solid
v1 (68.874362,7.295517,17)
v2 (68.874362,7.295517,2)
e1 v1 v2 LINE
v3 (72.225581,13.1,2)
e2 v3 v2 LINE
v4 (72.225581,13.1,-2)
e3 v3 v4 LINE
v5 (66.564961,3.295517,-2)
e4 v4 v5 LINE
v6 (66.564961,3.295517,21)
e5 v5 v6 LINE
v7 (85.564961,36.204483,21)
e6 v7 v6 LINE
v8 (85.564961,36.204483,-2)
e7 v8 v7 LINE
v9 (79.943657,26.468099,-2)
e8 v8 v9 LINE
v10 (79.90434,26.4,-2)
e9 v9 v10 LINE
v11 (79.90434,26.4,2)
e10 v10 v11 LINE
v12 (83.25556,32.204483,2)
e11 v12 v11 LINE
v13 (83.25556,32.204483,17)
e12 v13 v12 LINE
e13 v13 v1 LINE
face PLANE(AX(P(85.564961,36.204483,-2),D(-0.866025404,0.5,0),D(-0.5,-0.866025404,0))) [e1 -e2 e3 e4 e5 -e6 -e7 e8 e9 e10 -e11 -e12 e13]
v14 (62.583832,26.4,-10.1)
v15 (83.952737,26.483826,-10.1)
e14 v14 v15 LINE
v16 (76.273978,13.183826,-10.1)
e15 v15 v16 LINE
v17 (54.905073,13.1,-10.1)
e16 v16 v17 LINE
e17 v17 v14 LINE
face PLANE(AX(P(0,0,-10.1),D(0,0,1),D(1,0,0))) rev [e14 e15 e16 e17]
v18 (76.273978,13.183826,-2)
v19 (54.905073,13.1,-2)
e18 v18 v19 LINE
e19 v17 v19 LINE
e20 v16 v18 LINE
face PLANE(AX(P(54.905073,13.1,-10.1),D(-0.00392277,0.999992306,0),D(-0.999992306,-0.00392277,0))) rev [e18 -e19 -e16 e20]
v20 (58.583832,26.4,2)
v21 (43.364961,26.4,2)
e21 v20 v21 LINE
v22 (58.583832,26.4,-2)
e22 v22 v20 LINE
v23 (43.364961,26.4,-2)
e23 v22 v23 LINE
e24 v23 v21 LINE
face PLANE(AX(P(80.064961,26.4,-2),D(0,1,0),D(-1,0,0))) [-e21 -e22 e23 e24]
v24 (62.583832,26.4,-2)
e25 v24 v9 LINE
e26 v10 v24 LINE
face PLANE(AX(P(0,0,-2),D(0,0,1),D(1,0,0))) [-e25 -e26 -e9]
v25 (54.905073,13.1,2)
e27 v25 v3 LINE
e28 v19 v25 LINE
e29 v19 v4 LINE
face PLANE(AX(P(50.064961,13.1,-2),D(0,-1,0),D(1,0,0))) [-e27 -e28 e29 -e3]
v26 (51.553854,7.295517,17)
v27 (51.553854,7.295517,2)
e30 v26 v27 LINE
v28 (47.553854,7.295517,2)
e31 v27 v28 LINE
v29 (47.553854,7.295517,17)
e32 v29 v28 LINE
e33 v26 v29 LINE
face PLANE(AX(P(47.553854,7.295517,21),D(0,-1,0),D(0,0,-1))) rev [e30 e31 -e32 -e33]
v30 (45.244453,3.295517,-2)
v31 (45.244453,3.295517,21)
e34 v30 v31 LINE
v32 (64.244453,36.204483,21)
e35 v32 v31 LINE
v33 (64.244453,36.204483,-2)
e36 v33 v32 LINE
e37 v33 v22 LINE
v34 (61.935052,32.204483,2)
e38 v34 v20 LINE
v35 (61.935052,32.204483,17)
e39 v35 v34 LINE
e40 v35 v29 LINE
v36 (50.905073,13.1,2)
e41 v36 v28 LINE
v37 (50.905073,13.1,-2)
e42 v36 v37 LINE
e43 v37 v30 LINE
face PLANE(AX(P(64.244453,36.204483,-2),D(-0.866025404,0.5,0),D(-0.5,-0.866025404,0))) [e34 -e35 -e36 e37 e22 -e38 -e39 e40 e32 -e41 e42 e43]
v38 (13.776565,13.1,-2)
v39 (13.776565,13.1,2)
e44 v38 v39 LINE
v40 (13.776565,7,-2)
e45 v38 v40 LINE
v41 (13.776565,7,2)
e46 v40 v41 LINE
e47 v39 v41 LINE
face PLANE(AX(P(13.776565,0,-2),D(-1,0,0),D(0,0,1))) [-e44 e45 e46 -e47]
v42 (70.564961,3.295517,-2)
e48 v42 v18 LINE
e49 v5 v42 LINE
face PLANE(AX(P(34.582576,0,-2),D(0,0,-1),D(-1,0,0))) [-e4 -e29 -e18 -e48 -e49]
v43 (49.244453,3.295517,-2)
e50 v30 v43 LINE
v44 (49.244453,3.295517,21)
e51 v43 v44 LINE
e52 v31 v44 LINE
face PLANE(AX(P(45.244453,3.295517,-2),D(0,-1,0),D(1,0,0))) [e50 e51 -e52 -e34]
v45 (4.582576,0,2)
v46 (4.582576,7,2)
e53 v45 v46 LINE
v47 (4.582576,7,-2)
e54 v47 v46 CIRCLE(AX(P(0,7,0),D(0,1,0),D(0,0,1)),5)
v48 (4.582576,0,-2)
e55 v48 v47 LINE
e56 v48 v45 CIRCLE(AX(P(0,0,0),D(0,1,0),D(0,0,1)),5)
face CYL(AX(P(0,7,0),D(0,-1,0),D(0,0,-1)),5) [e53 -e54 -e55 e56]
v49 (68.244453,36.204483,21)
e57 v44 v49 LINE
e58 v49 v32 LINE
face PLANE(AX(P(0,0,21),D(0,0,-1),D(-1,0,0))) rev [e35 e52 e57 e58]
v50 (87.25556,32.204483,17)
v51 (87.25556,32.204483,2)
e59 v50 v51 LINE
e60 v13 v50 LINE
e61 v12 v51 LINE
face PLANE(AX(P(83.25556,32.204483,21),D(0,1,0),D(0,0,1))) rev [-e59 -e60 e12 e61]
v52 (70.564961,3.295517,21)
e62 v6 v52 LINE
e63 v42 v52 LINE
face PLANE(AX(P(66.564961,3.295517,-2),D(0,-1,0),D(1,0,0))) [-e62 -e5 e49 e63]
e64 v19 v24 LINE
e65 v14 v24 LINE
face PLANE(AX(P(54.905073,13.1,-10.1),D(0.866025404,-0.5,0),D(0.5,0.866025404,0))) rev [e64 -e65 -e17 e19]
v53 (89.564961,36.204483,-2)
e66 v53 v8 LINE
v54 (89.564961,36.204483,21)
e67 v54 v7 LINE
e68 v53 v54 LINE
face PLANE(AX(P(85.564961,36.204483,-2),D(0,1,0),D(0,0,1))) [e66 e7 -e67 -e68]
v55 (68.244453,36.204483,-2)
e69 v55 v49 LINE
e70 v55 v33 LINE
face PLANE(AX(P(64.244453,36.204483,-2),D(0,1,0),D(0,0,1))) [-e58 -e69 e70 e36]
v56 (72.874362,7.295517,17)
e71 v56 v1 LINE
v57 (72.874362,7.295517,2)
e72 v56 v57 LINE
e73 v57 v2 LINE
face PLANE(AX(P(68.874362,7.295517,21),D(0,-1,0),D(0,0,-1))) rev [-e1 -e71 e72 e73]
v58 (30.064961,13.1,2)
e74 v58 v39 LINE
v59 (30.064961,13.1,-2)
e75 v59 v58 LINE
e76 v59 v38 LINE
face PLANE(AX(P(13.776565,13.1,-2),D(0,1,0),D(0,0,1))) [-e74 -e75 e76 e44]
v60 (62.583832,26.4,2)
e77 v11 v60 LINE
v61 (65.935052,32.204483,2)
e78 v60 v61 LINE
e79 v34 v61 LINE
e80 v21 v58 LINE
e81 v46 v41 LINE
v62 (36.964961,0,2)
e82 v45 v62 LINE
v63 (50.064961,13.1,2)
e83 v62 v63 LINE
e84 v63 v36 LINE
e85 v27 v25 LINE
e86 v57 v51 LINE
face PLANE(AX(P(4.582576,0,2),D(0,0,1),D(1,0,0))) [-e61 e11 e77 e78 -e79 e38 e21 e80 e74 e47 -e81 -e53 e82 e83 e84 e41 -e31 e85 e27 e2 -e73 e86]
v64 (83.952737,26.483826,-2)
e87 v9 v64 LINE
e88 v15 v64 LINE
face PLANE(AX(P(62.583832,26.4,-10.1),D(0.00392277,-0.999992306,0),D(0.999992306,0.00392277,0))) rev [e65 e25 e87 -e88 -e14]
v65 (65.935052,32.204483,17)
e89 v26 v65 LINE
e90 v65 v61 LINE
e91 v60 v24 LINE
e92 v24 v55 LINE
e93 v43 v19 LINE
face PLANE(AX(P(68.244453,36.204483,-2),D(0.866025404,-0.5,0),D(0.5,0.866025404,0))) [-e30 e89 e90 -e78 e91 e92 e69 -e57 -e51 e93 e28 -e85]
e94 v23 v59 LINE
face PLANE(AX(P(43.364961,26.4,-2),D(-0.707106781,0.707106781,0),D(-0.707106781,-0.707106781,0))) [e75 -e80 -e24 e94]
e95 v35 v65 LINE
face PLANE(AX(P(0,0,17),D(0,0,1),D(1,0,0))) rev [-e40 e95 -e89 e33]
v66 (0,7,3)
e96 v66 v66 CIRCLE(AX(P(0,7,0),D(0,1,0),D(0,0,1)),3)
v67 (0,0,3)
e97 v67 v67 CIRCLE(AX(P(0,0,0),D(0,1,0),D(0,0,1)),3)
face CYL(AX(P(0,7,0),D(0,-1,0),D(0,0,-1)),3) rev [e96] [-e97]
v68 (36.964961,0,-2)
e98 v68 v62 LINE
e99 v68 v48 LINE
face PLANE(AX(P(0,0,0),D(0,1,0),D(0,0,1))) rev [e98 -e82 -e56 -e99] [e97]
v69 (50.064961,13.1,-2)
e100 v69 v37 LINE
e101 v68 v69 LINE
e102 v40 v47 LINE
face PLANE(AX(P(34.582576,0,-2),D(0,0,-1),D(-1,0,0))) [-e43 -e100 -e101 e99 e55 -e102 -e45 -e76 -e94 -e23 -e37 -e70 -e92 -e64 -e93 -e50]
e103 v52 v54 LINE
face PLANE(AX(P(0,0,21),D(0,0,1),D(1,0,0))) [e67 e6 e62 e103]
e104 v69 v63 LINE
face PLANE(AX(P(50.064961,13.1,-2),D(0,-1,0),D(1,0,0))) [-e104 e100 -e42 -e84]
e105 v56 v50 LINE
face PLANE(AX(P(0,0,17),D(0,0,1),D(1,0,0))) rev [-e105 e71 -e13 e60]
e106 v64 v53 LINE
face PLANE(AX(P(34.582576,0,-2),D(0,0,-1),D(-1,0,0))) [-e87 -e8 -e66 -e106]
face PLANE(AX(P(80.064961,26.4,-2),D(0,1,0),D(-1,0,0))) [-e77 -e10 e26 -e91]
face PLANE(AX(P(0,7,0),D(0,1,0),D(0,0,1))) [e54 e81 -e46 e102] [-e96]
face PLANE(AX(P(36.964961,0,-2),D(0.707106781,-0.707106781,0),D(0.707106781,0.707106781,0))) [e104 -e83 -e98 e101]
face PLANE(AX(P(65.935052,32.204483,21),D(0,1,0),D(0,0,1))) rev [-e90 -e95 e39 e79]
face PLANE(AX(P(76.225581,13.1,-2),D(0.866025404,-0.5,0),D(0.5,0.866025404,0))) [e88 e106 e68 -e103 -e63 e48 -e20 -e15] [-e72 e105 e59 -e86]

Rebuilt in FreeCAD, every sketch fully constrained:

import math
import FreeCAD as App
import Part
import Sketcher

V = App.Vector
Q = App.Units.Quantity


def add_polygon(sketch, points):
    """Adds a closed chain of lines whose ends are joined by coincident constraints."""
    first, n = sketch.GeometryCount, len(points)
    for a, b in zip(points, points[1:] + points[:1]):
        sketch.addGeometry(Part.LineSegment(App.Vector(*a, 0), App.Vector(*b, 0)), False)
    for i in range(n):
        sketch.addConstraint(Sketcher.Constraint("Coincident", first + i, 2, first + (i + 1) % n, 1))

doc = App.newDocument("Part")
body = doc.addObject("PartDesign::Body", "Body")

# Sketch on XZ plane
sketch1 = body.newObject("Sketcher::SketchObject", "Sketch")
sketch1.AttachmentSupport = (doc.getObject("XZ_Plane"), [""])
sketch1.MapMode = "FlatFace"
sketch1.addGeometry(Part.Circle(V(0, 0, 0), V(0, 0, 1), 5), False)
sketch1.addGeometry(Part.Circle(V(0, 0, 0), V(0, 0, 1), 3), False)
sketch1.addConstraint(Sketcher.Constraint("Coincident", 0, 3, -1, 1))
sketch1.addConstraint(Sketcher.Constraint("Coincident", 1, 3, -1, 1))
sketch1.addConstraint(Sketcher.Constraint("Diameter", 0, 10.0))
sketch1.addConstraint(Sketcher.Constraint("Diameter", 1, 6.0))
pad1 = body.newObject("PartDesign::Pad", "Pad")
pad1.Profile = sketch1
pad1.Length = 7
pad1.Reversed = True

# Sketch on XZ plane
sketch2 = body.newObject("Sketcher::SketchObject", "Sketch001")
sketch2.AttachmentSupport = (doc.getObject("XZ_Plane"), [""])
sketch2.MapMode = "FlatFace"
sketch2.AttachmentOffset = App.Placement(V(0, 0, -7), App.Rotation())
sketch2.addGeometry(Part.LineSegment(V(4.582576, 2, 0), V(34.582576, 2, 0)), False)
sketch2.addGeometry(Part.LineSegment(V(34.582576, 2, 0), V(34.582576, -2, 0)), False)
sketch2.addGeometry(Part.LineSegment(V(34.582576, -2, 0), V(4.582576, -2, 0)), False)
sketch2.addGeometry(Part.ArcOfCircle(Part.Circle(V(0, 0, 0), V(0, 0, 1), 5), math.radians(23.578178), math.radians(336.421822)), False)
sketch2.addGeometry(Part.Circle(V(0, 0, 0), V(0, 0, 1), 3), False)
sketch2.addConstraint(Sketcher.Constraint("Coincident", 0, 2, 1, 1))
sketch2.addConstraint(Sketcher.Constraint("Coincident", 1, 2, 2, 1))
sketch2.addConstraint(Sketcher.Constraint("Coincident", 2, 2, 3, 2))
sketch2.addConstraint(Sketcher.Constraint("Coincident", 3, 1, 0, 1))
sketch2.addConstraint(Sketcher.Constraint("Horizontal", 0))
sketch2.addConstraint(Sketcher.Constraint("Vertical", 1))
sketch2.addConstraint(Sketcher.Constraint("Horizontal", 2))
sketch2.addConstraint(Sketcher.Constraint("Coincident", 3, 3, -1, 1))
sketch2.addConstraint(Sketcher.Constraint("Coincident", 4, 3, -1, 1))
sketch2.addConstraint(Sketcher.Constraint("Vertical", 2, 2, 3, 1))
sketch2.addConstraint(Sketcher.Constraint("Diameter", 4, 6.0))
sketch2.addConstraint(Sketcher.Constraint("Radius", 3, 5.0))
sketch2.addConstraint(Sketcher.Constraint("DistanceX", 0, 1, 0, 2, 30.0))
sketch2.addConstraint(Sketcher.Constraint("DistanceY", 1, 2, 1, 1, 4.0))
pad2 = body.newObject("PartDesign::Pad", "Pad001")
pad2.Profile = sketch2
pad2.Length = 7

# Sketch on XY plane
sketch3 = body.newObject("Sketcher::SketchObject", "Sketch002")
sketch3.AttachmentSupport = (doc.getObject("XY_Plane"), [""])
sketch3.MapMode = "FlatFace"
sketch3.AttachmentOffset = App.Placement(V(0, 0, 2), App.Rotation())
add_polygon(sketch3, [(13.776565, 13.1), (13.776565, 0), (30.064961, 0), (30.064961, 13.1)])  # lines 0-3
sketch3.addConstraint(Sketcher.Constraint("Vertical", 0))
sketch3.addConstraint(Sketcher.Constraint("Horizontal", 1))
sketch3.addConstraint(Sketcher.Constraint("Vertical", 2))
sketch3.addConstraint(Sketcher.Constraint("Horizontal", 3))
sketch3.addConstraint(Sketcher.Constraint("PointOnObject", 0, 2, -1))
sketch3.addConstraint(Sketcher.Constraint("DistanceY", 0, 2, 0, 1, 13.1))
sketch3.addConstraint(Sketcher.Constraint("DistanceX", 1, 1, 1, 2, 16.288396))
sketch3.addConstraint(Sketcher.Constraint("DistanceX", -1, 1, 1, 2, 30.064961))
pad3 = body.newObject("PartDesign::Pad", "Pad002")
pad3.Profile = sketch3
pad3.Length = 4
pad3.Reversed = True

# Sketch on XY plane
sketch4 = body.newObject("Sketcher::SketchObject", "Sketch003")
sketch4.AttachmentSupport = (doc.getObject("XY_Plane"), [""])
sketch4.MapMode = "FlatFace"
sketch4.AttachmentOffset = App.Placement(V(0, 0, 2), App.Rotation())
add_polygon(sketch4, [(30.064961, 7), (30.064961, 0), (34.582576, 0), (34.582576, 7)])  # lines 0-3
sketch4.addConstraint(Sketcher.Constraint("Vertical", 0))
sketch4.addConstraint(Sketcher.Constraint("Horizontal", 1))
sketch4.addConstraint(Sketcher.Constraint("Vertical", 2))
sketch4.addConstraint(Sketcher.Constraint("Horizontal", 3))
sketch4.addConstraint(Sketcher.Constraint("PointOnObject", 0, 2, -1))
sketch4.addConstraint(Sketcher.Constraint("DistanceY", 0, 2, 0, 1, 7.0))
sketch4.addConstraint(Sketcher.Constraint("DistanceX", 1, 1, 1, 2, 4.517615))
sketch4.addConstraint(Sketcher.Constraint("DistanceX", -1, 1, 0, 2, 30.064961))
pocket1 = body.newObject("PartDesign::Pocket", "Pocket")
pocket1.Profile = sketch4
pocket1.Length = 4

# Sketch on XY plane
sketch5 = body.newObject("Sketcher::SketchObject", "Sketch004")
sketch5.AttachmentSupport = (doc.getObject("XY_Plane"), [""])
sketch5.MapMode = "FlatFace"
sketch5.AttachmentOffset = App.Placement(V(0, 0, 2), App.Rotation())
add_polygon(sketch5, [(30.064961, 13.1), (30.064961, 0), (36.964961, 0), (50.064961, 13.1), (76.225581, 13.1), (80.064961, 19.75), (80.064961, 26.4), (43.364961, 26.4)])  # lines 0-7
sketch5.addConstraint(Sketcher.Constraint("Vertical", 0))
sketch5.addConstraint(Sketcher.Constraint("Horizontal", 1))
sketch5.addConstraint(Sketcher.Constraint("Horizontal", 3))
sketch5.addConstraint(Sketcher.Constraint("Vertical", 5))
sketch5.addConstraint(Sketcher.Constraint("Horizontal", 6))
sketch5.addConstraint(Sketcher.Constraint("PointOnObject", 0, 2, -1))
sketch5.addConstraint(Sketcher.Constraint("Parallel", 2, 7))
sketch5.addConstraint(Sketcher.Constraint("Horizontal", 3, 2, 7, 2))
sketch5.addConstraint(Sketcher.Constraint("Angle", 2, Q("45 deg")))
sketch5.addConstraint(Sketcher.Constraint("Angle", 4, Q("60 deg")))
sketch5.addConstraint(Sketcher.Constraint("DistanceX", 1, 1, 1, 2, 6.9))
sketch5.addConstraint(Sketcher.Constraint("DistanceX", 6, 2, 6, 1, 36.7))
sketch5.addConstraint(Sketcher.Constraint("DistanceY", 0, 2, 0, 1, 13.1))
sketch5.addConstraint(Sketcher.Constraint("DistanceX", 2, 2, 4, 2, 30.0))
sketch5.addConstraint(Sketcher.Constraint("DistanceY", 5, 1, 5, 2, 6.65))
sketch5.addConstraint(Sketcher.Constraint("DistanceX", -1, 1, 0, 2, 30.064961))
pad4 = body.newObject("PartDesign::Pad", "Pad003")
pad4.Profile = sketch5
pad4.Length = 4
pad4.Reversed = True

# Sketch on XY plane
sketch6 = body.newObject("Sketcher::SketchObject", "Sketch005")
sketch6.AttachmentSupport = (doc.getObject("XY_Plane"), [""])
sketch6.MapMode = "FlatFace"
sketch6.AttachmentOffset = App.Placement(V(0, 0, 2), App.Rotation())
add_polygon(sketch6, [(68.244453, 36.204483), (64.244453, 36.204483), (45.244453, 3.295517), (49.244453, 3.295517)])  # lines 0-3
add_polygon(sketch6, [(89.564961, 36.204483), (85.564961, 36.204483), (66.564961, 3.295517), (70.564961, 3.295517)])  # lines 4-7
sketch6.addConstraint(Sketcher.Constraint("Horizontal", 0))
sketch6.addConstraint(Sketcher.Constraint("Horizontal", 2))
sketch6.addConstraint(Sketcher.Constraint("Horizontal", 4))
sketch6.addConstraint(Sketcher.Constraint("Horizontal", 6))
sketch6.addConstraint(Sketcher.Constraint("Parallel", 1, 3))
sketch6.addConstraint(Sketcher.Constraint("Parallel", 3, 5))
sketch6.addConstraint(Sketcher.Constraint("Parallel", 5, 7))
sketch6.addConstraint(Sketcher.Constraint("Horizontal", 3, 2, 4, 2))
sketch6.addConstraint(Sketcher.Constraint("Horizontal", 2, 2, 5, 2))
sketch6.addConstraint(Sketcher.Constraint("Equal", 2, 4))
sketch6.addConstraint(Sketcher.Constraint("DistanceX", 0, 2, 0, 1, 4.0))
sketch6.addConstraint(Sketcher.Constraint("Angle", 1, Q("-120 deg")))
sketch6.addConstraint(Sketcher.Constraint("Distance", 1, 38.0))
sketch6.addConstraint(Sketcher.Constraint("DistanceX", -1, 1, 4, 2, 85.564961))
sketch6.addConstraint(Sketcher.Constraint("DistanceX", 3, 2, 4, 2, 17.320508))
sketch6.addConstraint(Sketcher.Constraint("DistanceY", -1, 1, 0, 2, 36.204483))
pad5 = body.newObject("PartDesign::Pad", "Pad004")
pad5.Profile = sketch6
pad5.Length = 4
pad5.Reversed = True

# Sketch on XY plane
sketch7 = body.newObject("Sketcher::SketchObject", "Sketch006")
sketch7.AttachmentSupport = (doc.getObject("XY_Plane"), [""])
sketch7.MapMode = "FlatFace"
sketch7.AttachmentOffset = App.Placement(V(0, 0, 2), App.Rotation())
add_polygon(sketch7, [(68.244453, 36.204483), (64.244453, 36.204483), (61.935052, 32.204483), (65.935052, 32.204483)])  # lines 0-3
add_polygon(sketch7, [(89.564961, 36.204483), (85.564961, 36.204483), (83.25556, 32.204483), (87.25556, 32.204483)])  # lines 4-7
add_polygon(sketch7, [(66.564961, 3.295517), (70.564961, 3.295517), (72.874362, 7.295517), (68.874362, 7.295517)])  # lines 8-11
add_polygon(sketch7, [(45.244453, 3.295517), (49.244453, 3.295517), (51.553854, 7.295517), (47.553854, 7.295517)])  # lines 12-15
sketch7.addConstraint(Sketcher.Constraint("Horizontal", 0))
sketch7.addConstraint(Sketcher.Constraint("Horizontal", 2))
sketch7.addConstraint(Sketcher.Constraint("Horizontal", 4))
sketch7.addConstraint(Sketcher.Constraint("Horizontal", 6))
sketch7.addConstraint(Sketcher.Constraint("Horizontal", 8))
sketch7.addConstraint(Sketcher.Constraint("Horizontal", 10))
sketch7.addConstraint(Sketcher.Constraint("Horizontal", 12))
sketch7.addConstraint(Sketcher.Constraint("Horizontal", 14))
sketch7.addConstraint(Sketcher.Constraint("Parallel", 1, 3))
sketch7.addConstraint(Sketcher.Constraint("Parallel", 3, 5))
sketch7.addConstraint(Sketcher.Constraint("Parallel", 5, 7))
sketch7.addConstraint(Sketcher.Constraint("Parallel", 7, 9))
sketch7.addConstraint(Sketcher.Constraint("Parallel", 9, 11))
sketch7.addConstraint(Sketcher.Constraint("Parallel", 11, 13))
sketch7.addConstraint(Sketcher.Constraint("Parallel", 13, 15))
sketch7.addConstraint(Sketcher.Constraint("Horizontal", 3, 2, 4, 2))
sketch7.addConstraint(Sketcher.Constraint("Horizontal", 2, 2, 5, 2))
sketch7.addConstraint(Sketcher.Constraint("Horizontal", 11, 2, 12, 2))
sketch7.addConstraint(Sketcher.Constraint("Horizontal", 10, 2, 13, 2))
sketch7.addConstraint(Sketcher.Constraint("Equal", 2, 4))
sketch7.addConstraint(Sketcher.Constraint("Equal", 6, 8))
sketch7.addConstraint(Sketcher.Constraint("Equal", 10, 12))
sketch7.addConstraint(Sketcher.Constraint("Equal", 7, 9))
sketch7.addConstraint(Sketcher.Constraint("DistanceX", 0, 2, 0, 1, 4.0))
sketch7.addConstraint(Sketcher.Constraint("Angle", 1, Q("-120 deg")))
sketch7.addConstraint(Sketcher.Constraint("DistanceY", 1, 2, 0, 2, 4.0))
sketch7.addConstraint(Sketcher.Constraint("DistanceX", 8, 2, 5, 2, 12.690599))
sketch7.addConstraint(Sketcher.Constraint("DistanceX", 12, 2, 1, 2, 12.690599))
sketch7.addConstraint(Sketcher.Constraint("DistanceX", -1, 1, 1, 2, 61.935052))
sketch7.addConstraint(Sketcher.Constraint("DistanceX", -1, 1, 4, 2, 85.564961))
sketch7.addConstraint(Sketcher.Constraint("DistanceY", -1, 1, 0, 2, 36.204483))
sketch7.addConstraint(Sketcher.Constraint("DistanceY", -1, 1, 8, 2, 3.295517))
pad6 = body.newObject("PartDesign::Pad", "Pad005")
pad6.Profile = sketch7
pad6.Length = 19

# Sketch on XY plane
sketch8 = body.newObject("Sketcher::SketchObject", "Sketch007")
sketch8.AttachmentSupport = (doc.getObject("XY_Plane"), [""])
sketch8.MapMode = "FlatFace"
sketch8.AttachmentOffset = App.Placement(V(0, 0, 21), App.Rotation())
add_polygon(sketch8, [(68.244453, 36.204483), (64.244453, 36.204483), (45.244453, 3.295517), (49.244453, 3.295517)])  # lines 0-3
add_polygon(sketch8, [(89.564961, 36.204483), (85.564961, 36.204483), (66.564961, 3.295517), (70.564961, 3.295517)])  # lines 4-7
sketch8.addConstraint(Sketcher.Constraint("Horizontal", 0))
sketch8.addConstraint(Sketcher.Constraint("Horizontal", 2))
sketch8.addConstraint(Sketcher.Constraint("Horizontal", 4))
sketch8.addConstraint(Sketcher.Constraint("Horizontal", 6))
sketch8.addConstraint(Sketcher.Constraint("Parallel", 1, 3))
sketch8.addConstraint(Sketcher.Constraint("Parallel", 3, 5))
sketch8.addConstraint(Sketcher.Constraint("Parallel", 5, 7))
sketch8.addConstraint(Sketcher.Constraint("Horizontal", 3, 2, 4, 2))
sketch8.addConstraint(Sketcher.Constraint("Horizontal", 2, 2, 5, 2))
sketch8.addConstraint(Sketcher.Constraint("Equal", 2, 4))
sketch8.addConstraint(Sketcher.Constraint("DistanceX", 0, 2, 0, 1, 4.0))
sketch8.addConstraint(Sketcher.Constraint("Angle", 1, Q("-120 deg")))
sketch8.addConstraint(Sketcher.Constraint("Distance", 1, 38.0))
sketch8.addConstraint(Sketcher.Constraint("DistanceX", -1, 1, 4, 2, 85.564961))
sketch8.addConstraint(Sketcher.Constraint("DistanceX", 3, 2, 4, 2, 17.320508))
sketch8.addConstraint(Sketcher.Constraint("DistanceY", -1, 1, 0, 2, 36.204483))
pad7 = body.newObject("PartDesign::Pad", "Pad006")
pad7.Profile = sketch8
pad7.Length = 4
pad7.Reversed = True

# Sketch on XY plane
sketch9 = body.newObject("Sketcher::SketchObject", "Sketch008")
sketch9.AttachmentSupport = (doc.getObject("XY_Plane"), [""])
sketch9.MapMode = "FlatFace"
sketch9.AttachmentOffset = App.Placement(V(0, 0, -2), App.Rotation())
add_polygon(sketch9, [(54.905073, 13.1), (62.583832, 26.4), (83.952737, 26.483826), (76.273978, 13.183826)])  # lines 0-3
sketch9.addConstraint(Sketcher.Constraint("Parallel", 0, 2))
sketch9.addConstraint(Sketcher.Constraint("Parallel", 1, 3))
sketch9.addConstraint(Sketcher.Constraint("Angle", 0, Q("60 deg")))
sketch9.addConstraint(Sketcher.Constraint("DistanceY", -1, 1, 0, 2, 26.4))
sketch9.addConstraint(Sketcher.Constraint("DistanceY", -1, 1, 3, 2, 13.1))
sketch9.addConstraint(Sketcher.Constraint("Distance", 1, 21.369069))
sketch9.addConstraint(Sketcher.Constraint("DistanceX", -1, 1, 0, 2, 62.583832))
sketch9.addConstraint(Sketcher.Constraint("DistanceY", -1, 1, 1, 2, 26.483826))
pad8 = body.newObject("PartDesign::Pad", "Pad007")
pad8.Profile = sketch9
pad8.Length = 8.1
pad8.Reversed = True

doc.recompute()
